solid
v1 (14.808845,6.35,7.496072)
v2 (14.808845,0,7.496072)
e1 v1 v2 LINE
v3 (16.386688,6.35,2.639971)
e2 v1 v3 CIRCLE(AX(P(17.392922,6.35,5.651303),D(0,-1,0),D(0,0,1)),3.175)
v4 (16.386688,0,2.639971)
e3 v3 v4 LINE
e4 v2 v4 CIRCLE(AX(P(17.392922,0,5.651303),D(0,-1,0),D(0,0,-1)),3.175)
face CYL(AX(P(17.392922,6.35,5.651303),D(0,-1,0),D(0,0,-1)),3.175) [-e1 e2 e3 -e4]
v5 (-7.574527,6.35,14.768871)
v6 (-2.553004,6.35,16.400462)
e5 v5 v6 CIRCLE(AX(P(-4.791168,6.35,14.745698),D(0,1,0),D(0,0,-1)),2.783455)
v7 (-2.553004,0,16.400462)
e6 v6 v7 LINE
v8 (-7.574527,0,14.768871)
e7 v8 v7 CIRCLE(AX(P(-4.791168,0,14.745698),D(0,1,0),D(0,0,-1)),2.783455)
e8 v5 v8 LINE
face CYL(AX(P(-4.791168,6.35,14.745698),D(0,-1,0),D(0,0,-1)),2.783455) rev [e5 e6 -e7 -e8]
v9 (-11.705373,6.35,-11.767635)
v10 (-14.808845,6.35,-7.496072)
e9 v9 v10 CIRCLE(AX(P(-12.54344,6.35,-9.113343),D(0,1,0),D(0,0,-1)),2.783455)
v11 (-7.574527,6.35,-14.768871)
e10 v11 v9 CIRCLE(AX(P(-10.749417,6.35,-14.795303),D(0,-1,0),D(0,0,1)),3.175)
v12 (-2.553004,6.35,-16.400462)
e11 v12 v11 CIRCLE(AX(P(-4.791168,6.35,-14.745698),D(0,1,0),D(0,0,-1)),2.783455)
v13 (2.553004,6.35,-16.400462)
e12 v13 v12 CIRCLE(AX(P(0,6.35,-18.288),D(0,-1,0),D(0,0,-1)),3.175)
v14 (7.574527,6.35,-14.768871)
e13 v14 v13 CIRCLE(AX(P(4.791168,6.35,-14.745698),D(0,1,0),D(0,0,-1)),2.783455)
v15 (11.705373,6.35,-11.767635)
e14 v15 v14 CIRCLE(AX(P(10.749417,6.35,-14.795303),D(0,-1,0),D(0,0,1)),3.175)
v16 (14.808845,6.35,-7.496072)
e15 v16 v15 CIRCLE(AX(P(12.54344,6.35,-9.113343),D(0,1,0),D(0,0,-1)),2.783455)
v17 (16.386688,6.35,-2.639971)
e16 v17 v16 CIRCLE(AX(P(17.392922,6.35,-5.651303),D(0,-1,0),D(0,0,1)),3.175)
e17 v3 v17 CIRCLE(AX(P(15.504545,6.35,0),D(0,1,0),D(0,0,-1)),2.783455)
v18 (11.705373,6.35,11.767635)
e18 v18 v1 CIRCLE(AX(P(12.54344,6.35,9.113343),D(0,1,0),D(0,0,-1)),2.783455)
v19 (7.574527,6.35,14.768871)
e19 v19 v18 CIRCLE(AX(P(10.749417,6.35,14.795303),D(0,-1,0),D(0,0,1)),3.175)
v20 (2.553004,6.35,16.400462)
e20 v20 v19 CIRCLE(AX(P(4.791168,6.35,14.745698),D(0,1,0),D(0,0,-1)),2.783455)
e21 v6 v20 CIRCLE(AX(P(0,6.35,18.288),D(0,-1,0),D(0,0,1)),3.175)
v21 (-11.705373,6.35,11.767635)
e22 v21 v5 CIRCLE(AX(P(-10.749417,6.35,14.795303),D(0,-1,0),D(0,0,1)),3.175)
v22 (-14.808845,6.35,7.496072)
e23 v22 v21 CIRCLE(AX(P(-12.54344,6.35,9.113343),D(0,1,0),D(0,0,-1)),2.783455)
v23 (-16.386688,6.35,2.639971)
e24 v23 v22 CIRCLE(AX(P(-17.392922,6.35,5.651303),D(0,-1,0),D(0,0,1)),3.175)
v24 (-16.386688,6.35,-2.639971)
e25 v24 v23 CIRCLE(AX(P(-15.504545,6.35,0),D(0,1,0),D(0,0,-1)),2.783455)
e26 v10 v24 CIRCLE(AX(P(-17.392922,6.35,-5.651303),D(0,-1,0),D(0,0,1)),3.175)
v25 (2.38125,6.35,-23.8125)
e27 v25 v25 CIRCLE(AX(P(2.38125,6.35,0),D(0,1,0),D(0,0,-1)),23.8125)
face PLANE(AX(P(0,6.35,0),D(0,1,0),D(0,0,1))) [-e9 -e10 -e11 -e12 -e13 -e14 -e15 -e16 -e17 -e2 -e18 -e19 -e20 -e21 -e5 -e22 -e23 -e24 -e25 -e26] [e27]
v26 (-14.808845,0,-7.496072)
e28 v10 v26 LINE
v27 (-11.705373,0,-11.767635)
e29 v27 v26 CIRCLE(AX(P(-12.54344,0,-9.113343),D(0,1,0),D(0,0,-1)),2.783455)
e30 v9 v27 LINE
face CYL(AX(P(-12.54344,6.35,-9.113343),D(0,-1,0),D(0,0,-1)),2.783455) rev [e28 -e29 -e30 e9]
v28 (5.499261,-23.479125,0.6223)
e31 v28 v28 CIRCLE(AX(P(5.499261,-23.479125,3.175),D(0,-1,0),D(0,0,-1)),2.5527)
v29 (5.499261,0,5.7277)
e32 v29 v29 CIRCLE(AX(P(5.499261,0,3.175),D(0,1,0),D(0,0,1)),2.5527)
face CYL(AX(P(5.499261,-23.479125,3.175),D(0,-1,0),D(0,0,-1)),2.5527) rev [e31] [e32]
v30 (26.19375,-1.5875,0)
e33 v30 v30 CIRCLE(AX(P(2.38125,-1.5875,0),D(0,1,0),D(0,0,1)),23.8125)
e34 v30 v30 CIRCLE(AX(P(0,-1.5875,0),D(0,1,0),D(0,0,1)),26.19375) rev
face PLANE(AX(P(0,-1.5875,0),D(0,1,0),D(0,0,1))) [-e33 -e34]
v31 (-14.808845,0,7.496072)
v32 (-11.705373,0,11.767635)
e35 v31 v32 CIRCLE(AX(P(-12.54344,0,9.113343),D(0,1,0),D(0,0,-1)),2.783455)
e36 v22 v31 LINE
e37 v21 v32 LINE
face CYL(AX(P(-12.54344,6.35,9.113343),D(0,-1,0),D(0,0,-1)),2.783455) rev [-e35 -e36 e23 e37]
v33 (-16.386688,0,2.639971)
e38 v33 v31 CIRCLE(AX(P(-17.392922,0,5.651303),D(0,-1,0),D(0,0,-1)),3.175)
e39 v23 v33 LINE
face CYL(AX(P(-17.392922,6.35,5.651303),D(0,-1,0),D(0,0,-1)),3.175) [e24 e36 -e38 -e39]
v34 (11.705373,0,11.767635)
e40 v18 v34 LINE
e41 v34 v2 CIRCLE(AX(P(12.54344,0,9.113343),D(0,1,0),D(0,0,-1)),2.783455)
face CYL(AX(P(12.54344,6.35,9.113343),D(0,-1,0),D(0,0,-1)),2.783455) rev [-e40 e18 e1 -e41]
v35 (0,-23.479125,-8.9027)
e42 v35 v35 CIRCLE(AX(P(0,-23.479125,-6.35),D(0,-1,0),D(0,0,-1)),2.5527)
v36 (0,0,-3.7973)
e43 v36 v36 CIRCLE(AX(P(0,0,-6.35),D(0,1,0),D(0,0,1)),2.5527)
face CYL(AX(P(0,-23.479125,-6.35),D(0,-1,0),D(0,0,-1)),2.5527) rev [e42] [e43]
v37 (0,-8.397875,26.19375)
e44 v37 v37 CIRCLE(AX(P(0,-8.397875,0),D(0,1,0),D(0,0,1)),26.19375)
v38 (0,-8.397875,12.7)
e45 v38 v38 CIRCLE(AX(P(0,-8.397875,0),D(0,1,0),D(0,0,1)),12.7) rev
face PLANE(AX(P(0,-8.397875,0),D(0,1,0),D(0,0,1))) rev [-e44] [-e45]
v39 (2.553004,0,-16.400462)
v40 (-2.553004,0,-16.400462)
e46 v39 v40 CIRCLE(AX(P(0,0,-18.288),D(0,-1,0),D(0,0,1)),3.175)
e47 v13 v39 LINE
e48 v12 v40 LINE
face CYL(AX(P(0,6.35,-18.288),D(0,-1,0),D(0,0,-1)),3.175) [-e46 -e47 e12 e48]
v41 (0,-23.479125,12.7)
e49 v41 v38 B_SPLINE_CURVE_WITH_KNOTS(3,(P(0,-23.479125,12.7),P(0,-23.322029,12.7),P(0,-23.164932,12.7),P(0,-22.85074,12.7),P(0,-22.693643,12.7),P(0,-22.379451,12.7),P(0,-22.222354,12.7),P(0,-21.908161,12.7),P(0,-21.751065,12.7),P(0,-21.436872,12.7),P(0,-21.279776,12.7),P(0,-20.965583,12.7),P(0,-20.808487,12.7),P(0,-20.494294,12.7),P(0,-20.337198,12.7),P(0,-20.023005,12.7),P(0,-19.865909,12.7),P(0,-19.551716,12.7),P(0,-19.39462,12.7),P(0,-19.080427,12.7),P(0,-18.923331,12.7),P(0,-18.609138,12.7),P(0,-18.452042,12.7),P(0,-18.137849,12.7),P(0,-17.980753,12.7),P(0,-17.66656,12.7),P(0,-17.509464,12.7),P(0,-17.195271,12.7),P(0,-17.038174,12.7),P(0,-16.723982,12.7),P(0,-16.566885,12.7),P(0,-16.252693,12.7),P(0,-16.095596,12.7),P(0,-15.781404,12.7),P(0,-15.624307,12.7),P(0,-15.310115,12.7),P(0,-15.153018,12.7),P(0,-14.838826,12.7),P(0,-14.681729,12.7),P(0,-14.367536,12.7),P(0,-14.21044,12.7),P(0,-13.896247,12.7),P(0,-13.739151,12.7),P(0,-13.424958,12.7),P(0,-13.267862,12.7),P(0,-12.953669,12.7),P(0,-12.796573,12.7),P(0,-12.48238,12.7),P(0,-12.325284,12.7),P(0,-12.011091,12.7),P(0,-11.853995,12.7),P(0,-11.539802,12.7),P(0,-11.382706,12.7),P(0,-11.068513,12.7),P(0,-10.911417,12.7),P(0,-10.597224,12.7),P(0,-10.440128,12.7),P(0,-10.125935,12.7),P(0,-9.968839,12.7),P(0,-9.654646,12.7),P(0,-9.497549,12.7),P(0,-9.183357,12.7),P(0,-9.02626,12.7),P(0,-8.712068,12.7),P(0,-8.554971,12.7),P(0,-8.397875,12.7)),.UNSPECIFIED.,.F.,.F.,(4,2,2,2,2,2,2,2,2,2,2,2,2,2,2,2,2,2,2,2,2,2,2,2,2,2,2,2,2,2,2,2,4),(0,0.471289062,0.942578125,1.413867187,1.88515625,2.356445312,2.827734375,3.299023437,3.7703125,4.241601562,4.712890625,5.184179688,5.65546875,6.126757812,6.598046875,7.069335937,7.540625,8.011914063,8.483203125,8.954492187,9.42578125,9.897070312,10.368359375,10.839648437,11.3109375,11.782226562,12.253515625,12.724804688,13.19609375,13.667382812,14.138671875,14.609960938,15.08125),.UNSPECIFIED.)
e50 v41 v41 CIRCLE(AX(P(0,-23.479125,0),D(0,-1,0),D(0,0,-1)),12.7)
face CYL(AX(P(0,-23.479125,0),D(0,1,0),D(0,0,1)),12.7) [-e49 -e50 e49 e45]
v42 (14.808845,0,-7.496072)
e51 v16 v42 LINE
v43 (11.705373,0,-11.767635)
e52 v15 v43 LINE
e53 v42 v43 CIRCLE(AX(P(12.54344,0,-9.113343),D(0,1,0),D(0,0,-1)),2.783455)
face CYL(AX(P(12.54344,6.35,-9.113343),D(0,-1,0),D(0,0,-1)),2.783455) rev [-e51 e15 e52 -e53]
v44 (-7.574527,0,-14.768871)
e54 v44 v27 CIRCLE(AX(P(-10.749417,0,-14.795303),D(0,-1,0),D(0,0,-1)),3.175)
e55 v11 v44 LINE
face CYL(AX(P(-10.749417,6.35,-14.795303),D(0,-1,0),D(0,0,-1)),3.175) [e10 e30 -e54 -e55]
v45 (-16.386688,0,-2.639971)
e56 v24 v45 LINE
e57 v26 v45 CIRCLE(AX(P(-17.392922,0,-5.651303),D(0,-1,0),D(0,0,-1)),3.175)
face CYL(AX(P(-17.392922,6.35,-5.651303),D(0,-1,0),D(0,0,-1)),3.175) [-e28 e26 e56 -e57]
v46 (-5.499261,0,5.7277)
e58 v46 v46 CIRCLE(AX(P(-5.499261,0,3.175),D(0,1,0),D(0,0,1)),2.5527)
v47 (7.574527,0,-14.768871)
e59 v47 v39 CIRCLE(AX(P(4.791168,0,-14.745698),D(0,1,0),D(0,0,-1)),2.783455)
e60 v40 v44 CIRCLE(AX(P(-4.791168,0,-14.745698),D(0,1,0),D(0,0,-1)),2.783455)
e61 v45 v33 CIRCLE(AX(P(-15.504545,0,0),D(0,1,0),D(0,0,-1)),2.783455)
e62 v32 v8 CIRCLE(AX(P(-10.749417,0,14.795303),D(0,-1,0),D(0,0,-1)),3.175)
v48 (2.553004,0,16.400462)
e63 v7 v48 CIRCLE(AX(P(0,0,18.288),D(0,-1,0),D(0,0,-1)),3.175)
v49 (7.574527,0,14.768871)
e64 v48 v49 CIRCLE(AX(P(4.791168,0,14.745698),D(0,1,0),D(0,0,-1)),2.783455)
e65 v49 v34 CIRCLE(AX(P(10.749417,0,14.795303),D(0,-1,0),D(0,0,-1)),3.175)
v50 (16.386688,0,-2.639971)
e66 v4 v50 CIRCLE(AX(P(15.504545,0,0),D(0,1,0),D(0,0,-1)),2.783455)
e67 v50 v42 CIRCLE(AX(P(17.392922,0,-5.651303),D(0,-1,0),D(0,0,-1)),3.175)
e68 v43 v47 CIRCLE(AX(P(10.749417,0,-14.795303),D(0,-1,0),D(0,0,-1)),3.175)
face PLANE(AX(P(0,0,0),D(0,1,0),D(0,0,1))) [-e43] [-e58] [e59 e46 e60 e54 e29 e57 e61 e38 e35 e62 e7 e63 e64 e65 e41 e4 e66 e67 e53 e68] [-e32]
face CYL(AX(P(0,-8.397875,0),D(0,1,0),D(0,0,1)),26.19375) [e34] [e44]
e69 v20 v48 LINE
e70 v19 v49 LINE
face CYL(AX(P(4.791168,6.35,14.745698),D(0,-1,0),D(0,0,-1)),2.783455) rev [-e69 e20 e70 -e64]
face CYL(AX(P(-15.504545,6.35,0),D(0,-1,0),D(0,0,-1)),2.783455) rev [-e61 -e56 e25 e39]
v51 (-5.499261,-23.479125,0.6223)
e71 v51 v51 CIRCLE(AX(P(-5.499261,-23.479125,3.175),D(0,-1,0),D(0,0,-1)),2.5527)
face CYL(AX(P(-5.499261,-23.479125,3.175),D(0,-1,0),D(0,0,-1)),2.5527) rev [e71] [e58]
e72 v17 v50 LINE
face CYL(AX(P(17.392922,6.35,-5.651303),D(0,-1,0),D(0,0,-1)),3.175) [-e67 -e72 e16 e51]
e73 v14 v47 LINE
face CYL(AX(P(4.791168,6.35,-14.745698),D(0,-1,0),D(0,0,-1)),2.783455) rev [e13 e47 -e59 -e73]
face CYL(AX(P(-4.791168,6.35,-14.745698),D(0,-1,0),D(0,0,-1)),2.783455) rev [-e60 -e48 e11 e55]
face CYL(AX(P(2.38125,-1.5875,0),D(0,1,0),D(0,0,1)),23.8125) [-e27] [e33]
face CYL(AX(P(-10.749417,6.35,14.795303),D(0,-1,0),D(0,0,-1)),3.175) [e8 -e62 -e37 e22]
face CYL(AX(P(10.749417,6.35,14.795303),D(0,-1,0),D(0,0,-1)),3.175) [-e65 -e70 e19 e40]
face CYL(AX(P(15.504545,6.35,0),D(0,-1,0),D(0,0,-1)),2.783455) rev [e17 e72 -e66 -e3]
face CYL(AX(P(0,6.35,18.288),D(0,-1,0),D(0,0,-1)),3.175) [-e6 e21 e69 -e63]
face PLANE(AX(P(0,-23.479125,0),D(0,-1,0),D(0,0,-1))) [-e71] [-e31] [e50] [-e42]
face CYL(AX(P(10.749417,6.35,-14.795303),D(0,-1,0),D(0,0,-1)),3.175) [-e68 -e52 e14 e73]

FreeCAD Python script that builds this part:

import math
import FreeCAD as App
import Part
import Sketcher
from FreeCAD import Vector
Q = App.Units.Quantity


def add_polygon(sketch, points):
    """Adds a closed chain of lines whose ends are joined by coincident constraints."""
    first, n = sketch.GeometryCount, len(points)
    for a, b in zip(points, points[1:] + points[:1]):
        sketch.addGeometry(Part.LineSegment(App.Vector(*a, 0), App.Vector(*b, 0)), False)
    for i in range(n):
        sketch.addConstraint(Sketcher.Constraint("Coincident", first + i, 2, first + (i + 1) % n, 1))

doc = App.newDocument("Part")
body = doc.addObject("PartDesign::Body", "Body")

# Sketch on XZ plane
sketch1 = doc.addObject("Sketcher::SketchObject", "Sketch")
body.addObject(sketch1)
sketch1.AttachmentSupport = (doc.XZ_Plane, [""])
sketch1.MapMode = "FlatFace"
sketch1.addGeometry(Part.Circle(Vector(0, 0, 0), Vector(0, 0, 1), 26), False)
sketch1.addConstraint([
    Sketcher.Constraint("Coincident", 0, 3, -1, 1),
    Sketcher.Constraint("Diameter", 0, Q("2.0625 in")),
])
pad1 = doc.addObject("PartDesign::Pad", "Pad")
body.addObject(pad1)
pad1.Profile = sketch1
pad1.Length = 8.397875

# Sketch on XZ plane
sketch2 = doc.addObject("Sketcher::SketchObject", "Sketch001")
body.addObject(sketch2)
sketch2.AttachmentSupport = (doc.XZ_Plane, [""])
sketch2.MapMode = "FlatFace"
sketch2.AttachmentOffset = App.Placement(Vector(0, 0, 8.397875), App.Rotation())
sketch2.addGeometry(Part.Circle(Vector(0, 0, 0), Vector(0, 0, 1), 13), False)
sketch2.addConstraint([
    Sketcher.Constraint("Coincident", 0, 3, -1, 1),
    Sketcher.Constraint("Diameter", 0, Q("1 in")),
])
pad2 = doc.addObject("PartDesign::Pad", "Pad001")
body.addObject(pad2)
pad2.Profile = sketch2
pad2.Length = Q("0.59375 in")

# Sketch on XZ plane
sketch3 = doc.addObject("Sketcher::SketchObject", "Sketch002")
body.addObject(sketch3)
sketch3.AttachmentSupport = (doc.XZ_Plane, [""])
sketch3.MapMode = "FlatFace"
sketch3.AttachmentOffset = App.Placement(Vector(0, 0, -0.25 * 25.4), App.Rotation())
sketch3.addGeometry([
    Part.Circle(Vector(0, 0, 0), Vector(0, 0, 1), 26.2),  # 0
    Part.ArcOfCircle(Part.Circle(Vector(0, -18.3, 0), Vector(0, 0, 1), 3.2), math.radians(36), math.radians(90)),  # 1
    Part.ArcOfCircle(Part.Circle(Vector(4.8, -14.7, 0), Vector(0, 0, 1), 2.8), math.radians(-144), math.radians(0)),  # 2
    Part.ArcOfCircle(Part.Circle(Vector(10.7, -14.8, 0), Vector(0, 0, 1), 3.2), math.radians(126), math.radians(180)),  # 3
    Part.ArcOfCircle(Part.Circle(Vector(10.7, -14.8, 0), Vector(0, 0, 1), 3.2), math.radians(72), math.radians(126)),  # 4
    Part.ArcOfCircle(Part.Circle(Vector(12.5, -9.1, 0), Vector(0, 0, 1), 2.8), math.radians(-108), math.radians(36)),  # 5
    Part.ArcOfCircle(Part.Circle(Vector(17.4, -5.7, 0), Vector(0, 0, 1), 3.2), math.radians(162), math.radians(216)),  # 6
    Part.ArcOfCircle(Part.Circle(Vector(17.4, -5.7, 0), Vector(0, 0, 1), 3.2), math.radians(108), math.radians(162)),  # 7
    Part.ArcOfCircle(Part.Circle(Vector(15.5, 0, 0), Vector(0, 0, 1), 2.8), math.radians(-72), math.radians(72)),  # 8
    Part.ArcOfCircle(Part.Circle(Vector(17.4, 5.7, 0), Vector(0, 0, 1), 3.2), math.radians(-162), math.radians(-108)),  # 9
    Part.ArcOfCircle(Part.Circle(Vector(17.4, 5.7, 0), Vector(0, 0, 1), 3.2), math.radians(144), math.radians(198)),  # 10
    Part.ArcOfCircle(Part.Circle(Vector(12.5, 9.1, 0), Vector(0, 0, 1), 2.8), math.radians(-36), math.radians(108)),  # 11
    Part.ArcOfCircle(Part.Circle(Vector(10.7, 14.8, 0), Vector(0, 0, 1), 3.2), math.radians(-126), math.radians(-72)),  # 12
    Part.ArcOfCircle(Part.Circle(Vector(10.7, 14.8, 0), Vector(0, 0, 1), 3.2), math.radians(-180), math.radians(-126)),  # 13
    Part.ArcOfCircle(Part.Circle(Vector(4.8, 14.7, 0), Vector(0, 0, 1), 2.8), math.radians(0), math.radians(144)),  # 14
    Part.ArcOfCircle(Part.Circle(Vector(0, 18.3, 0), Vector(0, 0, 1), 3.2), math.radians(-90), math.radians(-36)),  # 15
    Part.ArcOfCircle(Part.Circle(Vector(0, 18.3, 0), Vector(0, 0, 1), 3.2), math.radians(-144), math.radians(-90)),  # 16
    Part.ArcOfCircle(Part.Circle(Vector(-4.8, 14.7, 0), Vector(0, 0, 1), 2.8), math.radians(36), math.radians(180)),  # 17
    Part.ArcOfCircle(Part.Circle(Vector(-10.7, 14.8, 0), Vector(0, 0, 1), 3.2), math.radians(-54), math.radians(0)),  # 18
    Part.ArcOfCircle(Part.Circle(Vector(-10.7, 14.8, 0), Vector(0, 0, 1), 3.2), math.radians(-108), math.radians(-54)),  # 19
    Part.ArcOfCircle(Part.Circle(Vector(-12.5, 9.1, 0), Vector(0, 0, 1), 2.8), math.radians(72), math.radians(216)),  # 20
    Part.ArcOfCircle(Part.Circle(Vector(-17.4, 5.7, 0), Vector(0, 0, 1), 3.2), math.radians(-18), math.radians(36)),  # 21
    Part.ArcOfCircle(Part.Circle(Vector(-17.4, 5.7, 0), Vector(0, 0, 1), 3.2), math.radians(-72), math.radians(-18)),  # 22
    Part.ArcOfCircle(Part.Circle(Vector(-15.5, 0, 0), Vector(0, 0, 1), 2.8), math.radians(108), math.radians(252)),  # 23
    Part.ArcOfCircle(Part.Circle(Vector(-17.4, -5.7, 0), Vector(0, 0, 1), 3.2), math.radians(18), math.radians(72)),  # 24
    Part.ArcOfCircle(Part.Circle(Vector(-17.4, -5.7, 0), Vector(0, 0, 1), 3.2), math.radians(-36), math.radians(18)),  # 25
    Part.ArcOfCircle(Part.Circle(Vector(-12.5, -9.1, 0), Vector(0, 0, 1), 2.8), math.radians(144), math.radians(288)),  # 26
    Part.ArcOfCircle(Part.Circle(Vector(-10.7, -14.8, 0), Vector(0, 0, 1), 3.2), math.radians(54), math.radians(108)),  # 27
    Part.ArcOfCircle(Part.Circle(Vector(-10.7, -14.8, 0), Vector(0, 0, 1), 3.2), math.radians(0), math.radians(54)),  # 28
    Part.ArcOfCircle(Part.Circle(Vector(-4.8, -14.7, 0), Vector(0, 0, 1), 2.8), math.radians(-180), math.radians(-36)),  # 29
    Part.ArcOfCircle(Part.Circle(Vector(0, -18.3, 0), Vector(0, 0, 1), 3.2), math.radians(90), math.radians(144)),  # 30
], False)
sketch3.addConstraint([
    Sketcher.Constraint("Tangent", 1, 1, 2, 1),
    Sketcher.Constraint("Tangent", 2, 2, 3, 2),
    Sketcher.Constraint("Tangent", 3, 1, 4, 2),
    Sketcher.Constraint("Tangent", 4, 1, 5, 1),
    Sketcher.Constraint("Tangent", 5, 2, 6, 2),
    Sketcher.Constraint("Tangent", 6, 1, 7, 2),
    Sketcher.Constraint("Tangent", 7, 1, 8, 1),
    Sketcher.Constraint("Tangent", 8, 2, 9, 2),
    Sketcher.Constraint("Tangent", 9, 1, 10, 2),
    Sketcher.Constraint("Tangent", 10, 1, 11, 1),
    Sketcher.Constraint("Tangent", 11, 2, 12, 2),
    Sketcher.Constraint("Tangent", 12, 1, 13, 2),
    Sketcher.Constraint("Tangent", 13, 1, 14, 1),
    Sketcher.Constraint("Tangent", 14, 2, 15, 2),
    Sketcher.Constraint("Tangent", 15, 1, 16, 2),
    Sketcher.Constraint("Tangent", 16, 1, 17, 1),
    Sketcher.Constraint("Tangent", 17, 2, 18, 2),
    Sketcher.Constraint("Tangent", 18, 1, 19, 2),
    Sketcher.Constraint("Tangent", 19, 1, 20, 1),
    Sketcher.Constraint("Tangent", 20, 2, 21, 2),
    Sketcher.Constraint("Tangent", 21, 1, 22, 2),
    Sketcher.Constraint("Tangent", 22, 1, 23, 1),
    Sketcher.Constraint("Tangent", 23, 2, 24, 2),
    Sketcher.Constraint("Tangent", 24, 1, 25, 2),
    Sketcher.Constraint("Tangent", 25, 1, 26, 1),
    Sketcher.Constraint("Tangent", 26, 2, 27, 2),
    Sketcher.Constraint("Tangent", 27, 1, 28, 2),
    Sketcher.Constraint("Tangent", 28, 1, 29, 1),
    Sketcher.Constraint("Tangent", 29, 2, 30, 2),
    Sketcher.Constraint("Tangent", 30, 1, 1, 2),
    Sketcher.Constraint("Coincident", 0, 3, -1, 1),
    Sketcher.Constraint("Equal", 1, 3),
    Sketcher.Constraint("Equal", 3, 4),
    Sketcher.Constraint("Equal", 2, 5),
    Sketcher.Constraint("Equal", 4, 6),
    Sketcher.Constraint("Equal", 6, 7),
    Sketcher.Constraint("Equal", 5, 8),
    Sketcher.Constraint("Equal", 7, 9),
    Sketcher.Constraint("Equal", 9, 10),
    Sketcher.Constraint("Equal", 8, 11),
    Sketcher.Constraint("Equal", 10, 12),
    Sketcher.Constraint("Equal", 12, 13),
    Sketcher.Constraint("Equal", 11, 14),
    Sketcher.Constraint("Equal", 13, 15),
    Sketcher.Constraint("Equal", 15, 16),
    Sketcher.Constraint("Equal", 14, 17),
    Sketcher.Constraint("Equal", 16, 18),
    Sketcher.Constraint("Equal", 18, 19),
    Sketcher.Constraint("Equal", 17, 20),
    Sketcher.Constraint("Equal", 19, 21),
    Sketcher.Constraint("Equal", 21, 22),
    Sketcher.Constraint("Equal", 20, 23),
    Sketcher.Constraint("Equal", 22, 24),
    Sketcher.Constraint("Equal", 24, 25),
    Sketcher.Constraint("Equal", 23, 26),
    Sketcher.Constraint("Equal", 25, 27),
    Sketcher.Constraint("Equal", 27, 28),
    Sketcher.Constraint("Equal", 26, 29),
    Sketcher.Constraint("Equal", 28, 30),
    Sketcher.Constraint("Symmetric", 1, 3, 15, 3, -1, 1),
    Sketcher.Constraint("Symmetric", 3, 3, 18, 3, -1, 1),
    Sketcher.Constraint("Symmetric", 6, 3, 21, 3, -1, 1),
    Sketcher.Constraint("Symmetric", 9, 3, 24, 3, -1, 1),
    Sketcher.Constraint("Symmetric", 12, 3, 27, 3, -1, 1),
    Sketcher.Constraint("Symmetric", 14, 3, 17, 3, -2),
    Sketcher.Constraint("Symmetric", 11, 3, 20, 3, -2),
    Sketcher.Constraint("Symmetric", 9, 1, 21, 1, -2),
    Sketcher.Constraint("PointOnObject", 15, 1, -2),
    Sketcher.Constraint("PointOnObject", 30, 1, -2),
    Sketcher.Constraint("Horizontal", 12, 1, 18, 1),
    Sketcher.Constraint("Horizontal", 6, 1, 24, 1),
    Sketcher.Constraint("Horizontal", 3, 1, 27, 1),
    Sketcher.Constraint("Vertical", 6, 1, 9, 1),
    Sketcher.Constraint("Vertical", 3, 1, 12, 1),
    Sketcher.Constraint("Diameter", 0, Q("2.0625 in")),
    Sketcher.Constraint("Radius", 1, Q("0.125 in")),
    Sketcher.Constraint("DistanceY", 1, 3, -1, 1, Q("0.72 in")),
    Sketcher.Constraint("Radius", 2, 2.783455),
    Sketcher.Constraint("DistanceY", 2, 3, -1, 1, 14.745698),
    Sketcher.Constraint("DistanceX", -1, 1, 3, 1, 8.883199),
    Sketcher.Constraint("DistanceX", -1, 1, 5, 3, 12.54344),
    Sketcher.Constraint("DistanceX", -1, 1, 6, 3, 17.392922),
    Sketcher.Constraint("DistanceY", 2, 2, -1, 1, 14.768871),
    Sketcher.Constraint("DistanceX", -1, 1, 6, 1, 14.373317),
])
pad3 = doc.addObject("PartDesign::Pad", "Pad002")
body.addObject(pad3)
pad3.Profile = sketch3
pad3.Length = Q("0.25 in")

# Sketch on XZ plane
sketch4 = doc.addObject("Sketcher::SketchObject", "Sketch003")
body.addObject(sketch4)
sketch4.AttachmentSupport = (doc.XZ_Plane, [""])
sketch4.MapMode = "FlatFace"
sketch4.AttachmentOffset = App.Placement(Vector(0, 0, 23.479125), App.Rotation())
sketch4.addGeometry([
    Part.Circle(Vector(0, -6.3, 0), Vector(0, 0, 1), 2.6),
    Part.Circle(Vector(-5.5, 3.2, 0), Vector(0, 0, 1), 2.6),
    Part.Circle(Vector(5.5, 3.2, 0), Vector(0, 0, 1), 2.6),
], False)
sketch4.addConstraint([
    Sketcher.Constraint("Equal", 0, 1),
    Sketcher.Constraint("Equal", 1, 2),
    Sketcher.Constraint("Symmetric", 1, 3, 2, 3, -2),
    Sketcher.Constraint("PointOnObject", 0, 3, -2),
    Sketcher.Constraint("Diameter", 0, Q("0.201 in")),
    Sketcher.Constraint("DistanceY", 0, 3, -1, 1, Q("0.25 in")),
    Sketcher.Constraint("DistanceY", -1, 1, 1, 3, Q("0.125 in")),
    Sketcher.Constraint("DistanceX", 1, 3, -1, 1, 5.499261),
])
doc.recompute()
hole = doc.addObject("PartDesign::Hole", "Hole")
body.addObject(hole)
hole.Profile = sketch4
hole.ThreadType = "None"
hole.Diameter = Q("0.201 in")
hole.DepthType = "ThroughAll"

# Sketch on XZ plane
sketch5 = doc.addObject("Sketcher::SketchObject", "Sketch004")
body.addObject(sketch5)
sketch5.AttachmentSupport = (doc.XZ_Plane, [""])
sketch5.MapMode = "FlatFace"
sketch5.AttachmentOffset = App.Placement(Vector(0, 0, -0.25 * 25.4), App.Rotation())
add_polygon(sketch5, [(-33, -34), (-33, 34), (33, 34), (33, -34)])  # lines 0-3
sketch5.addGeometry(Part.Circle(Vector(2, 0, 0), Vector(0, 0, 1), 24), False)  # 4
sketch5.addConstraint([
    Sketcher.Constraint("Vertical", 0),
    Sketcher.Constraint("Horizontal", 1),
    Sketcher.Constraint("Vertical", 2),
    Sketcher.Constraint("Horizontal", 3),
    Sketcher.Constraint("Symmetric", 0, 2, 2, 2, -1, 1),
    Sketcher.Constraint("PointOnObject", 4, 3, -1),
    Sketcher.Constraint("Diameter", 4, Q("1.875 in")),
    Sketcher.Constraint("DistanceX", -1, 1, 4, 3, Q("0.09375 in")),
    Sketcher.Constraint("DistanceX", 1, 1, 1, 2, 66.503599),
    Sketcher.Constraint("DistanceY", 0, 1, 0, 2, 67.616646),
])
pocket1 = doc.addObject("PartDesign::Pocket", "Pocket")
body.addObject(pocket1)
pocket1.Profile = sketch5
pocket1.Length = Q("0.3125 in")
pocket1.Reversed = True

doc.recompute()
